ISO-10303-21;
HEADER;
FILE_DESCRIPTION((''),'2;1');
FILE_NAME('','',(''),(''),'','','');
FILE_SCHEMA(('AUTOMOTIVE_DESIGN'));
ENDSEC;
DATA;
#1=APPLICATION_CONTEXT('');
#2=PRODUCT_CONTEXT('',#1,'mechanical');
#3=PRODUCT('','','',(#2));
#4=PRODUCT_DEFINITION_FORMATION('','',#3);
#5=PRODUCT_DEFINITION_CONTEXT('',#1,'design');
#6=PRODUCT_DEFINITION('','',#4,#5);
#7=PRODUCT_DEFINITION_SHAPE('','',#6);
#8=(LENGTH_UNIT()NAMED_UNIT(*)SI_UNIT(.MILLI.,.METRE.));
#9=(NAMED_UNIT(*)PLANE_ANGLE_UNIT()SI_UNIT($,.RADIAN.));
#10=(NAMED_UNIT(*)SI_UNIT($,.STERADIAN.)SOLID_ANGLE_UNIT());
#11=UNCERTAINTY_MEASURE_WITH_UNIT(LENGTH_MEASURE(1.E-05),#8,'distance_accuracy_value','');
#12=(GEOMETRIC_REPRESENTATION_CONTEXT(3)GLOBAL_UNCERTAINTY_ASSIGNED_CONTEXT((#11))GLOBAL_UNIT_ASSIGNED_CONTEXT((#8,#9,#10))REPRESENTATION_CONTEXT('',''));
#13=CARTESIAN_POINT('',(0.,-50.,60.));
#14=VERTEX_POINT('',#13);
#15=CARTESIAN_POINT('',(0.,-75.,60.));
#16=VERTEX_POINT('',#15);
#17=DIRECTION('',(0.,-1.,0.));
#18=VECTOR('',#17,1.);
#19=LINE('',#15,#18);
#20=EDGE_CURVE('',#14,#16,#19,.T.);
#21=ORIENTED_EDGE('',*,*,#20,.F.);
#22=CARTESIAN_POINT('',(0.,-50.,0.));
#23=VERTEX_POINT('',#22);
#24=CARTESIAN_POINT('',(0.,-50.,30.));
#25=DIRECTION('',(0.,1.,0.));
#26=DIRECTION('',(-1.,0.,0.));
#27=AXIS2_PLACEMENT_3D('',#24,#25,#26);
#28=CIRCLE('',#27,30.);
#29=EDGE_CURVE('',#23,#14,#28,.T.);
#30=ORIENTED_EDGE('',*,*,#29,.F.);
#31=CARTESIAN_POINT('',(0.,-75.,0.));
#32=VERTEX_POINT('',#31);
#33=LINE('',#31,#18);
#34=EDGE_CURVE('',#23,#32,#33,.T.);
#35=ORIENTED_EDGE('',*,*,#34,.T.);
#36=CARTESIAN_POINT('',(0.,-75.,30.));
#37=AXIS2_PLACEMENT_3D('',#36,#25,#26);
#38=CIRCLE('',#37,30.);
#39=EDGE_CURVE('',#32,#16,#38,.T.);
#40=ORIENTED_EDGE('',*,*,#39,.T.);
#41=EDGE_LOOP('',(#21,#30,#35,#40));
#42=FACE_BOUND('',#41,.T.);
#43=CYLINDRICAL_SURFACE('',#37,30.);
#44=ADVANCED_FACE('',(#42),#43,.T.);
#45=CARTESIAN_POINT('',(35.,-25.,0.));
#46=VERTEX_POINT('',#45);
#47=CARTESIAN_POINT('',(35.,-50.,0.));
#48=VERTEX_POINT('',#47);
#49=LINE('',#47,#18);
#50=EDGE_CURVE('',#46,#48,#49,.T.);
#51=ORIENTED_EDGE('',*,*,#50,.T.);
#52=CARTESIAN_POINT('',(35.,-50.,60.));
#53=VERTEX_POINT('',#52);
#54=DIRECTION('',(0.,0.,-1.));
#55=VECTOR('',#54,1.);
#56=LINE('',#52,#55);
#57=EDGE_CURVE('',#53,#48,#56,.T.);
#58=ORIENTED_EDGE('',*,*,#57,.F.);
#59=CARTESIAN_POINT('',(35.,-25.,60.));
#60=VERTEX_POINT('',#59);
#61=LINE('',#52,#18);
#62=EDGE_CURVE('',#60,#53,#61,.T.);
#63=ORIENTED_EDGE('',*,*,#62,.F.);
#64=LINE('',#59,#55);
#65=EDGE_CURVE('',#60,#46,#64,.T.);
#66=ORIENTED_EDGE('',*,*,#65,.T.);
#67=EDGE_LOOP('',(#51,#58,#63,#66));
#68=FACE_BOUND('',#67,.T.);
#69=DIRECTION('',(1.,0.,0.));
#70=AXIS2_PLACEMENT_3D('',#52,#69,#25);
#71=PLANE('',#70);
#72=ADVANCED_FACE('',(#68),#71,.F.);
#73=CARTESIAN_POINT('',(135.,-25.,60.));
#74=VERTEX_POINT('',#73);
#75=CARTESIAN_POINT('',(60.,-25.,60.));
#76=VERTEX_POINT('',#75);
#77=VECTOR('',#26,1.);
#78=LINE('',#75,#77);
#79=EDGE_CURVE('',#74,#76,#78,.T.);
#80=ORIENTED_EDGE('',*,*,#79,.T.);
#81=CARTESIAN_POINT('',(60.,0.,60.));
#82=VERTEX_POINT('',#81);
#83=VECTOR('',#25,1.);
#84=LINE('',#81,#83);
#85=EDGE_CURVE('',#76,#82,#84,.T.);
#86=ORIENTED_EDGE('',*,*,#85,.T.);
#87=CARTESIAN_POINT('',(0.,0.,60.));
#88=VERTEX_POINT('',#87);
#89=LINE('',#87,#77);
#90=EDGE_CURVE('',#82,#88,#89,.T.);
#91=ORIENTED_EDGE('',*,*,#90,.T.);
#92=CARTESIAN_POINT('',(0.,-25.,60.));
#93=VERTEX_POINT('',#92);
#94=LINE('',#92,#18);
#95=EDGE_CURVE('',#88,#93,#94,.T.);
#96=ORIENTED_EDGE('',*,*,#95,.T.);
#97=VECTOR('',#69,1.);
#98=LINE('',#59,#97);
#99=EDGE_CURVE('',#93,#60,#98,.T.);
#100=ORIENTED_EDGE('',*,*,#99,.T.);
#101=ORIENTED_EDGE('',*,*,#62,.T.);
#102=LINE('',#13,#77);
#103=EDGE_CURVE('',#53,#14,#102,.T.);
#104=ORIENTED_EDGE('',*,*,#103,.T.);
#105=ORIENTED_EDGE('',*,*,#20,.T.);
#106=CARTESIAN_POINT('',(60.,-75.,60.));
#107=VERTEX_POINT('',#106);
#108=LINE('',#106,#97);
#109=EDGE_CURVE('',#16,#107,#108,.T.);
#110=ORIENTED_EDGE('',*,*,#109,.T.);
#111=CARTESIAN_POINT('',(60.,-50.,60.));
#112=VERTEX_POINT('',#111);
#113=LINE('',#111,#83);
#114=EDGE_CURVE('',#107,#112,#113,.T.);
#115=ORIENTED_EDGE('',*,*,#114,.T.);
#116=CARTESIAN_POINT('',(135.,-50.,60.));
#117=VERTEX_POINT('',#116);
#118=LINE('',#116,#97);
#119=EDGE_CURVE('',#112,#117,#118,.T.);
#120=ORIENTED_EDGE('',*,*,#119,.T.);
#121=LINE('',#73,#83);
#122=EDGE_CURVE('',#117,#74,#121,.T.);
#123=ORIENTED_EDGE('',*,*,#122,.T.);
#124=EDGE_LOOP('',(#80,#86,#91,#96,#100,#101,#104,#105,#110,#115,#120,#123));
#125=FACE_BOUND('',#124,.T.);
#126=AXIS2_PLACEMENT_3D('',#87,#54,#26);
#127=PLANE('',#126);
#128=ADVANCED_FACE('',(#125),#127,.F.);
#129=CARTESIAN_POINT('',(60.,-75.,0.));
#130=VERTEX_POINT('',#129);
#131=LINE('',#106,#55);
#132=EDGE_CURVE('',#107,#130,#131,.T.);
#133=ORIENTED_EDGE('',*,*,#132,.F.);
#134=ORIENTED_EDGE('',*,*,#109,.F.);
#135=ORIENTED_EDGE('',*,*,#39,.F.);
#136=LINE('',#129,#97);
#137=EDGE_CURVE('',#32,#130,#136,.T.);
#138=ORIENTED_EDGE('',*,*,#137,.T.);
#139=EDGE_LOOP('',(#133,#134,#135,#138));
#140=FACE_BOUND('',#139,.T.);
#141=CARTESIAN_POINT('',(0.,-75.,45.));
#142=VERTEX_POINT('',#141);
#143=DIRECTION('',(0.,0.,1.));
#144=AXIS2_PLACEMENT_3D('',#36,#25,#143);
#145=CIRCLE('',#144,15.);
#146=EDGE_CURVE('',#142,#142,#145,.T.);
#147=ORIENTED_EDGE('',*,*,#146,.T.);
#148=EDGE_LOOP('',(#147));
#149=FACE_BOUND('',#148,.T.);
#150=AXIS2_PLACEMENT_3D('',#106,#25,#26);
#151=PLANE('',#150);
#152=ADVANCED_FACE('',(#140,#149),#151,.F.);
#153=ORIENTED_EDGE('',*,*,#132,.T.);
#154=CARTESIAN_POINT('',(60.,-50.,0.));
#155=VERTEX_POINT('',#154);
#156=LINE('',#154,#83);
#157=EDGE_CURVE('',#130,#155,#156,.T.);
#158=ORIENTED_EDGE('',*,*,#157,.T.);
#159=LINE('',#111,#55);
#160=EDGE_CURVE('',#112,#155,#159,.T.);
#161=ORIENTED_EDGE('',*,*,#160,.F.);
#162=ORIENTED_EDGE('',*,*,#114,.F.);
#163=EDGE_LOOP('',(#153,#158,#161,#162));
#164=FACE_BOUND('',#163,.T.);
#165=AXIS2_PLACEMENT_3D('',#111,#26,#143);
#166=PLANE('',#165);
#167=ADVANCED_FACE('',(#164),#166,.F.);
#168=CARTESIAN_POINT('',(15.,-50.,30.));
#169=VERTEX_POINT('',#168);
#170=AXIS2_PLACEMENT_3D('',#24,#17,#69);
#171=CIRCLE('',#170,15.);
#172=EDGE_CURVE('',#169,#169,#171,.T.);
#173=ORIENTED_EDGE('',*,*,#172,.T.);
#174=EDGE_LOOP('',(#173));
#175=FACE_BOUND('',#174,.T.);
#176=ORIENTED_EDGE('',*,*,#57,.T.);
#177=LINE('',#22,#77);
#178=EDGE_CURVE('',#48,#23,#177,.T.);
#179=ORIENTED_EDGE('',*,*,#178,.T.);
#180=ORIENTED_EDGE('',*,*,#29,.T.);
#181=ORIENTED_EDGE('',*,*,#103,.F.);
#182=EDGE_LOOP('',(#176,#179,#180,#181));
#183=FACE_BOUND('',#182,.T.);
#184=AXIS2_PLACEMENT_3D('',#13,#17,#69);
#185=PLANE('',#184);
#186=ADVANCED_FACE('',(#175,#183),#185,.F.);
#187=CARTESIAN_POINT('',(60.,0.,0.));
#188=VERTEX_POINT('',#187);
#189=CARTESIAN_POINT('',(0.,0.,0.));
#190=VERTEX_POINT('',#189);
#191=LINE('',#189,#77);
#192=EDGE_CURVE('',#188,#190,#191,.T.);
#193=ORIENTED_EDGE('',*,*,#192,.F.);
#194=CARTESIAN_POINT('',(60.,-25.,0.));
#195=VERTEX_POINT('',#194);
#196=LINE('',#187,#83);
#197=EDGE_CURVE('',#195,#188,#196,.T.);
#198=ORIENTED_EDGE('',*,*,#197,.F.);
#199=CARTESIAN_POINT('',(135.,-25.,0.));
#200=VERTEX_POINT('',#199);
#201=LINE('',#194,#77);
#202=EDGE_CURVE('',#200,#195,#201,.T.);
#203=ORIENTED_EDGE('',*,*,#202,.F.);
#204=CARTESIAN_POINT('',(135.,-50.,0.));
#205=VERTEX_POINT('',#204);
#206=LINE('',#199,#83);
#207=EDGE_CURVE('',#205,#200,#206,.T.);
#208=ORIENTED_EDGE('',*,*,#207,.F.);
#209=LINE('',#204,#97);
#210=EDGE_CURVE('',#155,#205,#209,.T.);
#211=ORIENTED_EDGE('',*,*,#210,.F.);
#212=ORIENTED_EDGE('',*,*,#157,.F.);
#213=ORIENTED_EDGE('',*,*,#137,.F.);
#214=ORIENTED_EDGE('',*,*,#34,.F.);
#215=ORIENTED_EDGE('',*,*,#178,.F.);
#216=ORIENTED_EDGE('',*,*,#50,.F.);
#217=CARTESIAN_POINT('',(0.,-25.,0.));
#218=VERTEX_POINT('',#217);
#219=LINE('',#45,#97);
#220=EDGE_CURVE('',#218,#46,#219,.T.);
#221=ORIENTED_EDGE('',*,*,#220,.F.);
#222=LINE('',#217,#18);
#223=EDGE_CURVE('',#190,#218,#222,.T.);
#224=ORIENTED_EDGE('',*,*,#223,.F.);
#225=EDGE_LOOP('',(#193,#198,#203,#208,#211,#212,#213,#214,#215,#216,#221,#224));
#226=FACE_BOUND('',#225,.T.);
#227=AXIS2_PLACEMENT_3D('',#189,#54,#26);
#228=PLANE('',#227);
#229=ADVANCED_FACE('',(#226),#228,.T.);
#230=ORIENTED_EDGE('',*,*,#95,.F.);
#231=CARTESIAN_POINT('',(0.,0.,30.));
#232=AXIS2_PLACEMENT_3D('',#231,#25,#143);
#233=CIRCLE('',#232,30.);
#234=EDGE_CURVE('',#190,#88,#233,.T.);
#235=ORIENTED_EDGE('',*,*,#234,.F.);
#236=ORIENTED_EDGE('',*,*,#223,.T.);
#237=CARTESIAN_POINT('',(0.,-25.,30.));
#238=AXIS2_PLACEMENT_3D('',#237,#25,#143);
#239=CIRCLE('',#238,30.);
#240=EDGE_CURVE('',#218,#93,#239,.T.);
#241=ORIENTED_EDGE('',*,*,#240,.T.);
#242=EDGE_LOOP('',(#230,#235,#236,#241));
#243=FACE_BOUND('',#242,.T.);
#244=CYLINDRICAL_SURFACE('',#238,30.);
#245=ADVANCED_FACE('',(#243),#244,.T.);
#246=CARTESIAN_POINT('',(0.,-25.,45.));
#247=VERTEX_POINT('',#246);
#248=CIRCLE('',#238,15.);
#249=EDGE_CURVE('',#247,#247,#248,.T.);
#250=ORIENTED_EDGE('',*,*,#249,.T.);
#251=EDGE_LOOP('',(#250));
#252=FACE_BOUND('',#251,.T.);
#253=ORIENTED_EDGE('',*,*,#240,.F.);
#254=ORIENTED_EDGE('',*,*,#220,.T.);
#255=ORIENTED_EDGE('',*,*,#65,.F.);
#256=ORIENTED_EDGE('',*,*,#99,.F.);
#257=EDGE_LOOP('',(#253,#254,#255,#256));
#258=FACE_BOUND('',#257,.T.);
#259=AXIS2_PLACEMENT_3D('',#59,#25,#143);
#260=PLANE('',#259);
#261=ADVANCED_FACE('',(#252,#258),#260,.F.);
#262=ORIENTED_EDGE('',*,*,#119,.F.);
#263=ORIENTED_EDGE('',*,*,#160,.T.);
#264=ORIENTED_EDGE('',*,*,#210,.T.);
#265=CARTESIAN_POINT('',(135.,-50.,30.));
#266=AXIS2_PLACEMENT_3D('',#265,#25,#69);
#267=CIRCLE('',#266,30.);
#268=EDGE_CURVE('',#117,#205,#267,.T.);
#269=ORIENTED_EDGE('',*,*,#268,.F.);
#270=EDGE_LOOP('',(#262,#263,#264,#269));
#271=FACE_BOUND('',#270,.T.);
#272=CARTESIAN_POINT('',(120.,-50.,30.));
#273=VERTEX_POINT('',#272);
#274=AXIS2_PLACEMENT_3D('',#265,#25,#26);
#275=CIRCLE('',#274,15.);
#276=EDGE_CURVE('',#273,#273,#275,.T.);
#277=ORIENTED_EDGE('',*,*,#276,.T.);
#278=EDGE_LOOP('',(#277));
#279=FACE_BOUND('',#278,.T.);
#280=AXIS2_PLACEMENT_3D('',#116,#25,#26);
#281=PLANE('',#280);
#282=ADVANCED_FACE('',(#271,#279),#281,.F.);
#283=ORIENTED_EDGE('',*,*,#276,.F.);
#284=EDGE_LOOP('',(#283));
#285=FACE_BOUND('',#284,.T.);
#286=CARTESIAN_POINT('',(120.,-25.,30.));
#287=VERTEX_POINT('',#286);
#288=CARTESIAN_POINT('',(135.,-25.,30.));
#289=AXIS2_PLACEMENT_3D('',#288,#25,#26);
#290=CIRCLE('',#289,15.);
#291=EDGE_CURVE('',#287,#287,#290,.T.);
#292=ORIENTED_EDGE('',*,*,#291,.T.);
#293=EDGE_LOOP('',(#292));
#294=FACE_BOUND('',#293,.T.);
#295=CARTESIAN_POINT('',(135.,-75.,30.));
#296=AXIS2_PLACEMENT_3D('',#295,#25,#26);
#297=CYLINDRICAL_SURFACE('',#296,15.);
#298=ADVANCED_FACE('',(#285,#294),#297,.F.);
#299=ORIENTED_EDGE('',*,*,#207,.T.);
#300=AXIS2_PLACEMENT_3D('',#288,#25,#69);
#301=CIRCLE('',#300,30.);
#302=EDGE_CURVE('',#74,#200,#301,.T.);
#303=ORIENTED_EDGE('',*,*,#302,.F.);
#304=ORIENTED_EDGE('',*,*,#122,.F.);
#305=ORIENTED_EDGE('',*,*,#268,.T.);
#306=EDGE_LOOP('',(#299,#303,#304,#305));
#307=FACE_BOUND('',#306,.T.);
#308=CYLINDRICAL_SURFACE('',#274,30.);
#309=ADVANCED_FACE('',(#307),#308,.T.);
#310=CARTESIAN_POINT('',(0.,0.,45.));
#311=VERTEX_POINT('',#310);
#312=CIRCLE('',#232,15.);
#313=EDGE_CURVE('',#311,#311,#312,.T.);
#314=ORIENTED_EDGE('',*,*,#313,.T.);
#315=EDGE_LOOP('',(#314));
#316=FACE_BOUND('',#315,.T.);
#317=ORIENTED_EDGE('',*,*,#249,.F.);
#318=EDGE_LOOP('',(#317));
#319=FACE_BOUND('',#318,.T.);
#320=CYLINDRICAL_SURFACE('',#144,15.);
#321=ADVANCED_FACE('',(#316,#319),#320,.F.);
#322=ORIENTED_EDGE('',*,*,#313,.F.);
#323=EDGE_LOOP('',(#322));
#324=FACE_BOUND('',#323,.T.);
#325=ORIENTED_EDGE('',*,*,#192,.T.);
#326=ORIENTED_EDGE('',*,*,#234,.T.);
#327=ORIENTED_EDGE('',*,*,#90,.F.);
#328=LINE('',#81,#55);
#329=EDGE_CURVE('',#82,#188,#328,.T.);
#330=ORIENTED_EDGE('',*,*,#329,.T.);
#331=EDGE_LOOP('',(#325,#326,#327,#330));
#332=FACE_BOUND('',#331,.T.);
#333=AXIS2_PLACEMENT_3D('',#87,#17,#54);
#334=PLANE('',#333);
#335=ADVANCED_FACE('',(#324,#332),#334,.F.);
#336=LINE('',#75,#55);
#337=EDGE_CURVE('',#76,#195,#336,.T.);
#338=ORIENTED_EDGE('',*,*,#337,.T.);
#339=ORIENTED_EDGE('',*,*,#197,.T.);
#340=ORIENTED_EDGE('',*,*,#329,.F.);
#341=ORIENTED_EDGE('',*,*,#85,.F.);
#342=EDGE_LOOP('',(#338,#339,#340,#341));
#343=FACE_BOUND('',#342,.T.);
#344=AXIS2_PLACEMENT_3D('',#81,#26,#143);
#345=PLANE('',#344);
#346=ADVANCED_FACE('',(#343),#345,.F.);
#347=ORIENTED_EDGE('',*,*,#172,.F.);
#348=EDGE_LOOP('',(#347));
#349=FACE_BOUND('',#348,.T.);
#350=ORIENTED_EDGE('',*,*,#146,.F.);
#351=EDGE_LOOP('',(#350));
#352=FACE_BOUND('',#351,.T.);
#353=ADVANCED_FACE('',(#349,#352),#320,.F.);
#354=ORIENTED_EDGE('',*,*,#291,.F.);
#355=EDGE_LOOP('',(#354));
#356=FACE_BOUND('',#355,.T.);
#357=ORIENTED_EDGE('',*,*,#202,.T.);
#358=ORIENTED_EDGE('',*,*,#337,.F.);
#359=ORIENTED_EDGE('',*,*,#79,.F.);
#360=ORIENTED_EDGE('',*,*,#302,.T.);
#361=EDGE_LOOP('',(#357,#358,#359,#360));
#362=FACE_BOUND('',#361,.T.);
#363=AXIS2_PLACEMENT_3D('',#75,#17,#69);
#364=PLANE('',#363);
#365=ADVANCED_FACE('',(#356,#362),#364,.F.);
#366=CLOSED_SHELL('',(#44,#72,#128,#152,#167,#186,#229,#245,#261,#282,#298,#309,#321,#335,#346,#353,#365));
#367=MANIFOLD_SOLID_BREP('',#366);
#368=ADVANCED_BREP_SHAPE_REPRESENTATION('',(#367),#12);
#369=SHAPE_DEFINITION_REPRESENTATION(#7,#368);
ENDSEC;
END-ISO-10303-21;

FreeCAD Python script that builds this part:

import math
import FreeCAD as App
import Part
import Sketcher

V = App.Vector

doc = App.newDocument("Part")
body = doc.addObject("PartDesign::Body", "Body")

# Sketch on XY plane
sketch1 = doc.addObject("Sketcher::SketchObject", "Sketch")
body.addObject(sketch1)
sketch1.AttachmentSupport = (doc.XY_Plane, [""])
sketch1.MapMode = "FlatFace"
sketch1.addGeometry([
    Part.LineSegment(V(60, 0, 0), V(0, 0, 0)),  # 0
    Part.LineSegment(V(0, 0, 0), V(0, -25, 0)),  # 1
    Part.LineSegment(V(0, -25, 0), V(35, -25, 0)),  # 2
    Part.LineSegment(V(35, -25, 0), V(35, -50, 0)),  # 3
    Part.LineSegment(V(35, -50, 0), V(0, -50, 0)),  # 4
    Part.LineSegment(V(0, -50, 0), V(0, -75, 0)),  # 5
    Part.LineSegment(V(0, -75, 0), V(60, -75, 0)),  # 6
    Part.LineSegment(V(60, -75, 0), V(60, -50, 0)),  # 7
    Part.LineSegment(V(60, -50, 0), V(135, -50, 0)),  # 8
    Part.LineSegment(V(135, -50, 0), V(135, -25, 0)),  # 9
    Part.LineSegment(V(135, -25, 0), V(60, -25, 0)),  # 10
    Part.LineSegment(V(60, -25, 0), V(60, 0, 0)),  # 11
], False)
sketch1.addConstraint([
    Sketcher.Constraint("Coincident", 0, 2, 1, 1),
    Sketcher.Constraint("Coincident", 1, 2, 2, 1),
    Sketcher.Constraint("Coincident", 2, 2, 3, 1),
    Sketcher.Constraint("Coincident", 3, 2, 4, 1),
    Sketcher.Constraint("Coincident", 4, 2, 5, 1),
    Sketcher.Constraint("Coincident", 5, 2, 6, 1),
    Sketcher.Constraint("Coincident", 6, 2, 7, 1),
    Sketcher.Constraint("Coincident", 7, 2, 8, 1),
    Sketcher.Constraint("Coincident", 8, 2, 9, 1),
    Sketcher.Constraint("Coincident", 9, 2, 10, 1),
    Sketcher.Constraint("Coincident", 10, 2, 11, 1),
    Sketcher.Constraint("Coincident", 11, 2, 0, 1),
    Sketcher.Constraint("Horizontal", 0),
    Sketcher.Constraint("Vertical", 1),
    Sketcher.Constraint("Horizontal", 2),
    Sketcher.Constraint("Vertical", 3),
    Sketcher.Constraint("Horizontal", 4),
    Sketcher.Constraint("Vertical", 5),
    Sketcher.Constraint("Horizontal", 6),
    Sketcher.Constraint("Vertical", 7),
    Sketcher.Constraint("Horizontal", 8),
    Sketcher.Constraint("Vertical", 9),
    Sketcher.Constraint("Horizontal", 10),
    Sketcher.Constraint("Vertical", 11),
    Sketcher.Constraint("Coincident", 0, 2, -1, 1),
    Sketcher.Constraint("PointOnObject", 4, 2, -2),
    Sketcher.Constraint("Horizontal", 4, 2, 7, 2),
    Sketcher.Constraint("Horizontal", 2, 2, 9, 2),
    Sketcher.Constraint("Vertical", 7, 2, 10, 2),
    Sketcher.Constraint("Equal", 1, 3),
    Sketcher.Constraint("Equal", 3, 5),
    Sketcher.Constraint("DistanceX", 0, 2, 0, 1, 60.0),
    Sketcher.Constraint("DistanceX", 2, 1, 2, 2, 35.0),
    Sketcher.Constraint("DistanceX", 8, 1, 8, 2, 75.0),
    Sketcher.Constraint("DistanceY", 1, 2, 1, 1, 25.0),
])
pad1 = doc.addObject("PartDesign::Pad", "Pad")
body.addObject(pad1)
pad1.Profile = sketch1
pad1.Length = 60

# Sketch on XZ plane
sketch2 = doc.addObject("Sketcher::SketchObject", "Sketch001")
body.addObject(sketch2)
sketch2.AttachmentSupport = (doc.XZ_Plane, [""])
sketch2.MapMode = "FlatFace"
sketch2.addGeometry([
    Part.LineSegment(V(0, 60, 0), V(0, 0, 0)),
    Part.ArcOfCircle(Part.Circle(V(0, 30, 0), V(0, 0, 1), 30), math.radians(90), math.radians(270)),
], False)
sketch2.addConstraint([
    Sketcher.Constraint("Coincident", 0, 1, 1, 1),
    Sketcher.Constraint("Coincident", 1, 2, 0, 2),
    Sketcher.Constraint("Vertical", 0),
    Sketcher.Constraint("Coincident", 1, 2, -1, 1),
    Sketcher.Constraint("PointOnObject", 1, 3, -2),
    Sketcher.Constraint("Radius", 1, 30.0),
])
pad2 = doc.addObject("PartDesign::Pad", "Pad001")
body.addObject(pad2)
pad2.Profile = sketch2
pad2.Length = 25

# Sketch on XZ plane
sketch3 = doc.addObject("Sketcher::SketchObject", "Sketch002")
body.addObject(sketch3)
sketch3.AttachmentSupport = (doc.XZ_Plane, [""])
sketch3.MapMode = "FlatFace"
sketch3.AttachmentOffset = App.Placement(V(0, 0, 50), App.Rotation())
sketch3.addGeometry([
    Part.LineSegment(V(0, 60, 0), V(0, 0, 0)),
    Part.ArcOfCircle(Part.Circle(V(0, 30, 0), V(0, 0, 1), 30), math.radians(90), math.radians(270)),
], False)
sketch3.addConstraint([
    Sketcher.Constraint("Coincident", 0, 1, 1, 1),
    Sketcher.Constraint("Coincident", 1, 2, 0, 2),
    Sketcher.Constraint("Vertical", 0),
    Sketcher.Constraint("Coincident", 1, 2, -1, 1),
    Sketcher.Constraint("PointOnObject", 1, 3, -2),
    Sketcher.Constraint("Radius", 1, 30.0),
])
pad3 = doc.addObject("PartDesign::Pad", "Pad002")
body.addObject(pad3)
pad3.Profile = sketch3
pad3.Length = 25

# Sketch on XZ plane
sketch4 = doc.addObject("Sketcher::SketchObject", "Sketch003")
body.addObject(sketch4)
sketch4.AttachmentSupport = (doc.XZ_Plane, [""])
sketch4.MapMode = "FlatFace"
sketch4.AttachmentOffset = App.Placement(V(0, 0, 25), App.Rotation())
sketch4.addGeometry([
    Part.LineSegment(V(135, 0, 0), V(135, 60, 0)),
    Part.ArcOfCircle(Part.Circle(V(135, 30, 0), V(0, 0, 1), 30), math.radians(-90), math.radians(90)),
], False)
sketch4.addConstraint([
    Sketcher.Constraint("Coincident", 0, 1, 1, 1),
    Sketcher.Constraint("Coincident", 1, 2, 0, 2),
    Sketcher.Constraint("Vertical", 0),
    Sketcher.Constraint("PointOnObject", 0, 1, -1),
    Sketcher.Constraint("Vertical", 1, 3, 0, 1),
    Sketcher.Constraint("Radius", 1, 30.0),
    Sketcher.Constraint("DistanceX", -1, 1, 1, 3, 135.0),
])
pad4 = doc.addObject("PartDesign::Pad", "Pad003")
body.addObject(pad4)
pad4.Profile = sketch4
pad4.Length = 25

# Sketch on XZ plane
sketch5 = doc.addObject("Sketcher::SketchObject", "Sketch004")
body.addObject(sketch5)
sketch5.AttachmentSupport = (doc.XZ_Plane, [""])
sketch5.MapMode = "FlatFace"
sketch5.addGeometry(Part.Circle(V(0, 30, 0), V(0, 0, 1), 15), False)
sketch5.addConstraint([
    Sketcher.Constraint("PointOnObject", 0, 3, -2),
    Sketcher.Constraint("Diameter", 0, 30.0),
    Sketcher.Constraint("DistanceY", -1, 1, 0, 3, 30.0),
])
pocket1 = doc.addObject("PartDesign::Pocket", "Pocket")
body.addObject(pocket1)
pocket1.Profile = sketch5
pocket1.Type = "ThroughAll"
pocket1.Midplane = True

# Sketch on XZ plane
sketch6 = doc.addObject("Sketcher::SketchObject", "Sketch005")
body.addObject(sketch6)
sketch6.AttachmentSupport = (doc.XZ_Plane, [""])
sketch6.MapMode = "FlatFace"
sketch6.AttachmentOffset = App.Placement(V(0, 0, 25), App.Rotation())
sketch6.addGeometry(Part.Circle(V(135, 30, 0), V(0, 0, 1), 15), False)
sketch6.addConstraint([
    Sketcher.Constraint("Diameter", 0, 30.0),
    Sketcher.Constraint("DistanceX", -1, 1, 0, 3, 135.0),
    Sketcher.Constraint("DistanceY", -1, 1, 0, 3, 30.0),
])
pocket2 = doc.addObject("PartDesign::Pocket", "Pocket001")
body.addObject(pocket2)
pocket2.Profile = sketch6
pocket2.Type = "ThroughAll"
pocket2.Midplane = True

doc.recompute()
